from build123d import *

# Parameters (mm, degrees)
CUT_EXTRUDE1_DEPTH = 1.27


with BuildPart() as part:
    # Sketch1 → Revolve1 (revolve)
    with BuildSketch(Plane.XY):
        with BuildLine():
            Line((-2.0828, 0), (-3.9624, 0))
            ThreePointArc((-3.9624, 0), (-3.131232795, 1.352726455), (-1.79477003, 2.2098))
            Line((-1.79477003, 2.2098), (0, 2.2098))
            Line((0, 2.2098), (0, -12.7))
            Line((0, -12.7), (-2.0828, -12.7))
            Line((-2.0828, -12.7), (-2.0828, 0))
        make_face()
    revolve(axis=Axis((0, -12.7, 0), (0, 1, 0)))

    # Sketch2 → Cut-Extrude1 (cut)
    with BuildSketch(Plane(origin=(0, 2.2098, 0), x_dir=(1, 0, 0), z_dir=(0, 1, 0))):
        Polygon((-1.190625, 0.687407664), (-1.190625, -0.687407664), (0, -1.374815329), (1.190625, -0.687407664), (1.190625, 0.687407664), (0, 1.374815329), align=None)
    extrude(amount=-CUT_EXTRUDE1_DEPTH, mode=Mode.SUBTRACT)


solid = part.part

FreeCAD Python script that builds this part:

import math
import FreeCAD as App
import Part
import Sketcher
Q = App.Units.Quantity

doc = App.newDocument("Part")
body = doc.addObject("PartDesign::Body", "Body")

sketch1 = doc.addObject("Sketcher::SketchObject", "Sketch")
body.addObject(sketch1)
sketch1.AttachmentSupport = (doc.XY_Plane, [""])
sketch1.MapMode = "FlatFace"
sketch1.addGeometry([
    Part.LineSegment(App.Vector(-4, 0, 0), App.Vector(-2.1, 0, 0)),
    Part.LineSegment(App.Vector(-2.1, 0, 0), App.Vector(-2.1, -12.7, 0)),
    Part.LineSegment(App.Vector(-2.1, -12.7, 0), App.Vector(0, -12.7, 0)),
    Part.LineSegment(App.Vector(0, -12.7, 0), App.Vector(0, 2.2, 0)),
    Part.LineSegment(App.Vector(0, 2.2, 0), App.Vector(-1.8, 2.2, 0)),
    Part.ArcOfCircle(Part.Circle(App.Vector(-0.6, -1.1, 0), App.Vector(0, 0, 1), 3.6), math.radians(110), math.radians(161)),
], False)
sketch1.addConstraint([
    Sketcher.Constraint("Coincident", 0, 2, 1, 1),
    Sketcher.Constraint("Coincident", 1, 2, 2, 1),
    Sketcher.Constraint("Coincident", 2, 2, 3, 1),
    Sketcher.Constraint("Coincident", 3, 2, 4, 1),
    Sketcher.Constraint("Coincident", 4, 2, 5, 1),
    Sketcher.Constraint("Coincident", 5, 2, 0, 1),
    Sketcher.Constraint("Horizontal", 0),
    Sketcher.Constraint("Vertical", 1),
    Sketcher.Constraint("Horizontal", 2),
    Sketcher.Constraint("Vertical", 3),
    Sketcher.Constraint("Horizontal", 4),
    Sketcher.Constraint("PointOnObject", 0, 2, -1),
    Sketcher.Constraint("PointOnObject", 2, 2, -2),
    Sketcher.Constraint("DistanceY", 1, 2, 1, 1, Q("0.5 in")),
    Sketcher.Constraint("DistanceX", 0, 1, 0, 2, Q("0.074 in")),
    Sketcher.Constraint("DistanceX", 2, 1, 2, 2, Q("0.082 in")),
    Sketcher.Constraint("DistanceY", 3, 1, 3, 2, Q("0.587 in")),
    Sketcher.Constraint("Radius", 5, 3.561276),
    Sketcher.Constraint("DistanceX", 4, 2, 4, 1, 1.79477),
])
revolution = doc.addObject("PartDesign::Revolution", "Revolution")
body.addObject(revolution)
revolution.Profile = sketch1
revolution.ReferenceAxis = (sketch1, ["V_Axis"])
revolution.Angle = 360

sketch2 = doc.addObject("Sketcher::SketchObject", "Sketch001")
body.addObject(sketch2)
sketch2.AttachmentSupport = (doc.XZ_Plane, [""])
sketch2.MapMode = "FlatFace"
sketch2.AttachmentOffset = App.Placement(App.Vector(0, 0, -0.087 * 25.4), App.Rotation())
sketch2.addGeometry([
    Part.LineSegment(App.Vector(-1.2, -0.7, 0), App.Vector(-1.2, 0.7, 0)),
    Part.LineSegment(App.Vector(-1.2, 0.7, 0), App.Vector(0, 1.4, 0)),
    Part.LineSegment(App.Vector(0, 1.4, 0), App.Vector(1.2, 0.7, 0)),
    Part.LineSegment(App.Vector(1.2, 0.7, 0), App.Vector(1.2, -0.7, 0)),
    Part.LineSegment(App.Vector(1.2, -0.7, 0), App.Vector(0, -1.4, 0)),
    Part.LineSegment(App.Vector(0, -1.4, 0), App.Vector(-1.2, -0.7, 0)),
], False)
sketch2.addConstraint([
    Sketcher.Constraint("Coincident", 0, 2, 1, 1),
    Sketcher.Constraint("Coincident", 1, 2, 2, 1),
    Sketcher.Constraint("Coincident", 2, 2, 3, 1),
    Sketcher.Constraint("Coincident", 3, 2, 4, 1),
    Sketcher.Constraint("Coincident", 4, 2, 5, 1),
    Sketcher.Constraint("Coincident", 5, 2, 0, 1),
    Sketcher.Constraint("Vertical", 0),
    Sketcher.Constraint("Vertical", 3),
    Sketcher.Constraint("Symmetric", 0, 2, 3, 2, -1, 1),
    Sketcher.Constraint("Symmetric", 1, 2, 4, 2, -1, 1),
    Sketcher.Constraint("PointOnObject", 1, 2, -2),
    Sketcher.Constraint("Parallel", 2, 5),
    Sketcher.Constraint("Horizontal", 0, 2, 2, 2),
    Sketcher.Constraint("Angle", 1, Q("30 deg")),
    Sketcher.Constraint("DistanceX", 0, 2, -1, 1, Q("0.046875 in")),
    Sketcher.Constraint("DistanceY", 0, 1, 0, 2, 1.374815),
])
pocket1 = doc.addObject("PartDesign::Pocket", "Pocket")
body.addObject(pocket1)
pocket1.Profile = sketch2
pocket1.Length = Q("0.05 in")
pocket1.Reversed = True

doc.recompute()
